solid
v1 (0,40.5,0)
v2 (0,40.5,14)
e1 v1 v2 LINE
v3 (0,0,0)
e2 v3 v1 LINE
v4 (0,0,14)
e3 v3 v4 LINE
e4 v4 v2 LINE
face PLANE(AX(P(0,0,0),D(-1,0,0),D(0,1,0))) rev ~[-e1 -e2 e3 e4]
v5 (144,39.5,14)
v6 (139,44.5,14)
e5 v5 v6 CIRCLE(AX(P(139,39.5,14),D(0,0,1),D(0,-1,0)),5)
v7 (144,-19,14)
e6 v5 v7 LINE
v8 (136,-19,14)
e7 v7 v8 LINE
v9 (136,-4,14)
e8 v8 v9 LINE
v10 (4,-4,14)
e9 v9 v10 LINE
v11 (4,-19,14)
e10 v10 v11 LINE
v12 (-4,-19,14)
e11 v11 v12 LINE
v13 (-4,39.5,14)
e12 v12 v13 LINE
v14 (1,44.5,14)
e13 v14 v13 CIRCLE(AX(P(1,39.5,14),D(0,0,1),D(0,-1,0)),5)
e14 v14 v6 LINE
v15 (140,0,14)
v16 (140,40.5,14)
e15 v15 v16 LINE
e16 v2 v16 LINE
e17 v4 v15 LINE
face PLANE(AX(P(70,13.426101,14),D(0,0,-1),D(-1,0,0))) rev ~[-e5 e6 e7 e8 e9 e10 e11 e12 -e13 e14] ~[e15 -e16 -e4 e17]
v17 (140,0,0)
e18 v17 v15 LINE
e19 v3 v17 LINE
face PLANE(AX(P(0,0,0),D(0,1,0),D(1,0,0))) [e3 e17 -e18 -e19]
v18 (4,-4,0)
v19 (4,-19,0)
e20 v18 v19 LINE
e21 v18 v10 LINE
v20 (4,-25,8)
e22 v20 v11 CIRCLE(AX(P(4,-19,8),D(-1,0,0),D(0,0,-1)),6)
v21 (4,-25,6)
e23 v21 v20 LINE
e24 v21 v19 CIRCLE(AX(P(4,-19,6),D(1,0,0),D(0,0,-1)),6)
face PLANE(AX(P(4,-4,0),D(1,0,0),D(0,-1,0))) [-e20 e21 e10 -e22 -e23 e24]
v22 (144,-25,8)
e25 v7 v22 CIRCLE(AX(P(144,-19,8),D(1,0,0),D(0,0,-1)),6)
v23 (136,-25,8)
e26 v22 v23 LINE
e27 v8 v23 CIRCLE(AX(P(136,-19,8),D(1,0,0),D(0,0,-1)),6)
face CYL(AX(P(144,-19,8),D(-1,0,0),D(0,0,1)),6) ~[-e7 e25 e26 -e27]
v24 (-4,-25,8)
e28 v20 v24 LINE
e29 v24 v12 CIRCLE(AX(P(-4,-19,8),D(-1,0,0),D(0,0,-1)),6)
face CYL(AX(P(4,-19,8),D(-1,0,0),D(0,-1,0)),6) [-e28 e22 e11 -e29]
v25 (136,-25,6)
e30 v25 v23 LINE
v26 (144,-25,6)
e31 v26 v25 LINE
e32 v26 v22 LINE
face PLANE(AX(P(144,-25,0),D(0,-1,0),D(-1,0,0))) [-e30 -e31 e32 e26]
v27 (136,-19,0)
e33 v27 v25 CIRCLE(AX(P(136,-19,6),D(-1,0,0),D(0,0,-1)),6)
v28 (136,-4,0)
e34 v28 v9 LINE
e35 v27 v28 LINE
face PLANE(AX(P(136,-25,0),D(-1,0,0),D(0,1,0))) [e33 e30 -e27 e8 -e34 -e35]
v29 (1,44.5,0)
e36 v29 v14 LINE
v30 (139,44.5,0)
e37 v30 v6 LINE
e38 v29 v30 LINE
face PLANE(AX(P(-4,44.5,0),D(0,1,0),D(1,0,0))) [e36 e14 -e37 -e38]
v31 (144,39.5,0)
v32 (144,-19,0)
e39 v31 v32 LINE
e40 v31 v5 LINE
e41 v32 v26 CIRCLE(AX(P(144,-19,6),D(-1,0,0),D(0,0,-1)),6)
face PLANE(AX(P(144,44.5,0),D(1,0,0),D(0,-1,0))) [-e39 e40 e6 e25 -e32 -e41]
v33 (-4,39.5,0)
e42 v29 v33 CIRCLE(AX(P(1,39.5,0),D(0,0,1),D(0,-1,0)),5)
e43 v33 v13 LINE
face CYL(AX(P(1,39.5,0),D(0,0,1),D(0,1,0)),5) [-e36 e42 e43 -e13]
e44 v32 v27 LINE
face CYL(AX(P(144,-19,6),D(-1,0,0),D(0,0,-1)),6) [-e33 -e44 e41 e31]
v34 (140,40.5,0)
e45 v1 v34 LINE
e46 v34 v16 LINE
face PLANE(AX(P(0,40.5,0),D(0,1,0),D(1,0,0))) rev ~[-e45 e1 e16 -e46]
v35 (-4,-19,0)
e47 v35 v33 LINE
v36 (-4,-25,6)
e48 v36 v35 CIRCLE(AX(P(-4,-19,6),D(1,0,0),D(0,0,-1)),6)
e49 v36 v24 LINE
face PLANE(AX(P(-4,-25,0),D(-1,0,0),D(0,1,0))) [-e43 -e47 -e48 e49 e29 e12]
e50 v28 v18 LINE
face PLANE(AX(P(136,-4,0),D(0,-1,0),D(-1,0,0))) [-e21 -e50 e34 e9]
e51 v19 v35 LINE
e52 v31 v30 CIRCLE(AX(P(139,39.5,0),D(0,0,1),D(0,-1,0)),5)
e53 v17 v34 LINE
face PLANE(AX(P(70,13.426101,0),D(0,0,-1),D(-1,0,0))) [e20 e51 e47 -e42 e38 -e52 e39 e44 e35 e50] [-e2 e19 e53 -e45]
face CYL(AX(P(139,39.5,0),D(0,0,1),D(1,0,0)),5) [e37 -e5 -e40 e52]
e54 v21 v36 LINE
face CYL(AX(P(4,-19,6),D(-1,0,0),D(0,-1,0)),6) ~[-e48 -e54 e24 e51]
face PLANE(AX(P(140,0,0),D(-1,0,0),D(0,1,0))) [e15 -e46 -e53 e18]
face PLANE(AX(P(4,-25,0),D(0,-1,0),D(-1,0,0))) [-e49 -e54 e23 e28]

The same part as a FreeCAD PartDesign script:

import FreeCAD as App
import Part
import Sketcher
from FreeCAD import Vector
Q = App.Units.Quantity


def edges_at(feature, points):
    """Names of the edges that pass closest to the given points."""
    edges = feature.Shape.Edges
    near = lambda p: min(range(len(edges)), key=lambda i: edges[i].distToShape(Part.Vertex(*p))[0])
    return sorted({f"Edge{near(p) + 1}" for p in points})

doc = App.newDocument("Part")
params = doc.addObject("Spreadsheet::Sheet", "Params")
for row, (alias, value) in enumerate([
    ("sketch1_width", "148 mm"),
    ("sketch1_width2", "8 mm"),
    ("sketch1_width3", "140 mm"),
    ("sketch1_height", "21 mm"),
    ("sketch1_height2", "69.5 mm"),
    ("pad1_length", "14 mm"),
    ("fillet_radius", "6 mm"),
    ("fillet2_radius", "6 mm"),
    ("fillet3_radius", "5 mm"),
], start=1):
    params.set(f"A{row}", alias)
    params.set(f"B{row}", "=" + value)
    params.setAlias(f"B{row}", alias)

body = doc.addObject("PartDesign::Body", "Body")

sketch1 = body.newObject("Sketcher::SketchObject", "Sketch")
sketch1.AttachmentSupport = (doc.getObject("XY_Plane"), [""])
sketch1.MapMode = "FlatFace"
sketch1.addGeometry(Part.LineSegment(Vector(144, 44, 0), Vector(-4, 44, 0)), False)
sketch1.addGeometry(Part.LineSegment(Vector(-4, 44, 0), Vector(-4, -25, 0)), False)
sketch1.addGeometry(Part.LineSegment(Vector(-4, -25, 0), Vector(4, -25, 0)), False)
sketch1.addGeometry(Part.LineSegment(Vector(4, -25, 0), Vector(4, -4, 0)), False)
sketch1.addGeometry(Part.LineSegment(Vector(4, -4, 0), Vector(136, -4, 0)), False)
sketch1.addGeometry(Part.LineSegment(Vector(136, -4, 0), Vector(136, -25, 0)), False)
sketch1.addGeometry(Part.LineSegment(Vector(136, -25, 0), Vector(144, -25, 0)), False)
sketch1.addGeometry(Part.LineSegment(Vector(144, -25, 0), Vector(144, 44, 0)), False)
sketch1.addGeometry(Part.LineSegment(Vector(0, 0, 0), Vector(0, 40, 0)), False)
sketch1.addGeometry(Part.LineSegment(Vector(0, 40, 0), Vector(140, 40, 0)), False)
sketch1.addGeometry(Part.LineSegment(Vector(140, 40, 0), Vector(140, 0, 0)), False)
sketch1.addGeometry(Part.LineSegment(Vector(140, 0, 0), Vector(0, 0, 0)), False)
sketch1.addConstraint(Sketcher.Constraint("Coincident", 0, 2, 1, 1))
sketch1.addConstraint(Sketcher.Constraint("Coincident", 1, 2, 2, 1))
sketch1.addConstraint(Sketcher.Constraint("Coincident", 2, 2, 3, 1))
sketch1.addConstraint(Sketcher.Constraint("Coincident", 3, 2, 4, 1))
sketch1.addConstraint(Sketcher.Constraint("Coincident", 4, 2, 5, 1))
sketch1.addConstraint(Sketcher.Constraint("Coincident", 5, 2, 6, 1))
sketch1.addConstraint(Sketcher.Constraint("Coincident", 6, 2, 7, 1))
sketch1.addConstraint(Sketcher.Constraint("Coincident", 7, 2, 0, 1))
sketch1.addConstraint(Sketcher.Constraint("Coincident", 8, 2, 9, 1))
sketch1.addConstraint(Sketcher.Constraint("Coincident", 9, 2, 10, 1))
sketch1.addConstraint(Sketcher.Constraint("Coincident", 10, 2, 11, 1))
sketch1.addConstraint(Sketcher.Constraint("Coincident", 11, 2, 8, 1))
sketch1.addConstraint(Sketcher.Constraint("Horizontal", 0))
sketch1.addConstraint(Sketcher.Constraint("Vertical", 1))
sketch1.addConstraint(Sketcher.Constraint("Horizontal", 2))
sketch1.addConstraint(Sketcher.Constraint("Vertical", 3))
sketch1.addConstraint(Sketcher.Constraint("Horizontal", 4))
sketch1.addConstraint(Sketcher.Constraint("Vertical", 5))
sketch1.addConstraint(Sketcher.Constraint("Horizontal", 6))
sketch1.addConstraint(Sketcher.Constraint("Vertical", 7))
sketch1.addConstraint(Sketcher.Constraint("Vertical", 8))
sketch1.addConstraint(Sketcher.Constraint("Horizontal", 9))
sketch1.addConstraint(Sketcher.Constraint("Vertical", 10))
sketch1.addConstraint(Sketcher.Constraint("Horizontal", 11))
sketch1.addConstraint(Sketcher.Constraint("Coincident", 11, 2, -1, 1))
sketch1.addConstraint(Sketcher.Constraint("Horizontal", 2, 2, 5, 2))
sketch1.addConstraint(Sketcher.Constraint("Equal", 2, 6))
sketch1.addConstraint(Sketcher.Constraint("DistanceX", 0, 2, 0, 1, Q("148 mm")))
sketch1.addConstraint(Sketcher.Constraint("DistanceX", 2, 1, 2, 2, Q("8 mm")))
sketch1.addConstraint(Sketcher.Constraint("DistanceX", 9, 1, 9, 2, Q("140 mm")))
sketch1.addConstraint(Sketcher.Constraint("DistanceY", 3, 1, 3, 2, Q("21 mm")))
sketch1.addConstraint(Sketcher.Constraint("DistanceY", 1, 2, 1, 1, Q("69.5 mm")))
sketch1.addConstraint(Sketcher.Constraint("DistanceY", 8, 1, 8, 2, Q("40.5 mm")))
sketch1.addConstraint(Sketcher.Constraint("DistanceX", 0, 2, -1, 1, Q("4 mm")))
sketch1.addConstraint(Sketcher.Constraint("DistanceY", 1, 2, -1, 1, Q("25 mm")))
sketch1.setExpression("Constraints[27]", "Params.sketch1_width")
sketch1.setExpression("Constraints[28]", "Params.sketch1_width2")
sketch1.setExpression("Constraints[29]", "Params.sketch1_width3")
sketch1.setExpression("Constraints[30]", "Params.sketch1_height")
sketch1.setExpression("Constraints[31]", "Params.sketch1_height2")
pad1 = body.newObject("PartDesign::Pad", "Pad")
pad1.Profile = sketch1
pad1.setExpression("Length", "Params.pad1_length")
doc.recompute()

fillet = body.newObject("PartDesign::Fillet", "Fillet")
fillet.Base = (pad1, edges_at(pad1, [(0, -25, 14), (0, -25, 0)]))
fillet.setExpression("Radius", "Params.fillet_radius")
doc.recompute()

fillet2 = body.newObject("PartDesign::Fillet", "Fillet001")
fillet2.Base = (fillet, edges_at(fillet, [(140, -25, 0), (140, -25, 14)]))
fillet2.setExpression("Radius", "Params.fillet2_radius")
doc.recompute()

fillet3 = body.newObject("PartDesign::Fillet", "Fillet002")
fillet3.Base = (fillet2, edges_at(fillet2, [(-4, 44.5, 7), (144, 44.5, 7)]))
fillet3.setExpression("Radius", "Params.fillet3_radius")

doc.recompute()
